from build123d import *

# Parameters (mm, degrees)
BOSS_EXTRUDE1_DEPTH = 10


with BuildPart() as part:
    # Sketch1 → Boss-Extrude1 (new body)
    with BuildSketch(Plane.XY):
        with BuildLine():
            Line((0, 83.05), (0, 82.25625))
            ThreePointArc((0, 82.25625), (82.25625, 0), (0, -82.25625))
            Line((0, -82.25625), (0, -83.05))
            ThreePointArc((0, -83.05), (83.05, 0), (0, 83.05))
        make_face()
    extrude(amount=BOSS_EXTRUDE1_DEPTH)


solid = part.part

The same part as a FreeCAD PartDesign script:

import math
import FreeCAD as App
import Part
import Sketcher

V = App.Vector
Q = App.Units.Quantity

doc = App.newDocument("Part")
body = doc.addObject("PartDesign::Body", "Body")

sketch1 = body.newObject("Sketcher::SketchObject", "Sketch")
sketch1.AttachmentSupport = (doc.getObject("XY_Plane"), [""])
sketch1.MapMode = "FlatFace"
sketch1.addGeometry(Part.LineSegment(V(0, 83, 0), V(0, 82.3, 0)), False)
sketch1.addGeometry(Part.ArcOfCircle(Part.Circle(V(0, 0, 0), V(0, 0, 1), 82.3), math.radians(-90), math.radians(90)), False)
sketch1.addGeometry(Part.LineSegment(V(0, -82.3, 0), V(0, -83, 0)), False)
sketch1.addGeometry(Part.ArcOfCircle(Part.Circle(V(0, 0, 0), V(0, 0, 1), 83), math.radians(-90), math.radians(90)), False)
sketch1.addConstraint(Sketcher.Constraint("Coincident", 0, 2, 1, 2))
sketch1.addConstraint(Sketcher.Constraint("Coincident", 1, 1, 2, 1))
sketch1.addConstraint(Sketcher.Constraint("Coincident", 2, 2, 3, 1))
sketch1.addConstraint(Sketcher.Constraint("Coincident", 3, 2, 0, 1))
sketch1.addConstraint(Sketcher.Constraint("Vertical", 0))
sketch1.addConstraint(Sketcher.Constraint("Vertical", 2))
sketch1.addConstraint(Sketcher.Constraint("Coincident", 1, 3, -1, 1))
sketch1.addConstraint(Sketcher.Constraint("Coincident", 3, 3, -1, 1))
sketch1.addConstraint(Sketcher.Constraint("PointOnObject", 0, 2, -2))
sketch1.addConstraint(Sketcher.Constraint("PointOnObject", 1, 1, -2))
sketch1.addConstraint(Sketcher.Constraint("Radius", 3, Q("83.05 mm")))
sketch1.addConstraint(Sketcher.Constraint("Radius", 1, Q("82.25625 mm")))
pad1 = body.newObject("PartDesign::Pad", "Pad")
pad1.Profile = sketch1
pad1.Length = 10

doc.recompute()
